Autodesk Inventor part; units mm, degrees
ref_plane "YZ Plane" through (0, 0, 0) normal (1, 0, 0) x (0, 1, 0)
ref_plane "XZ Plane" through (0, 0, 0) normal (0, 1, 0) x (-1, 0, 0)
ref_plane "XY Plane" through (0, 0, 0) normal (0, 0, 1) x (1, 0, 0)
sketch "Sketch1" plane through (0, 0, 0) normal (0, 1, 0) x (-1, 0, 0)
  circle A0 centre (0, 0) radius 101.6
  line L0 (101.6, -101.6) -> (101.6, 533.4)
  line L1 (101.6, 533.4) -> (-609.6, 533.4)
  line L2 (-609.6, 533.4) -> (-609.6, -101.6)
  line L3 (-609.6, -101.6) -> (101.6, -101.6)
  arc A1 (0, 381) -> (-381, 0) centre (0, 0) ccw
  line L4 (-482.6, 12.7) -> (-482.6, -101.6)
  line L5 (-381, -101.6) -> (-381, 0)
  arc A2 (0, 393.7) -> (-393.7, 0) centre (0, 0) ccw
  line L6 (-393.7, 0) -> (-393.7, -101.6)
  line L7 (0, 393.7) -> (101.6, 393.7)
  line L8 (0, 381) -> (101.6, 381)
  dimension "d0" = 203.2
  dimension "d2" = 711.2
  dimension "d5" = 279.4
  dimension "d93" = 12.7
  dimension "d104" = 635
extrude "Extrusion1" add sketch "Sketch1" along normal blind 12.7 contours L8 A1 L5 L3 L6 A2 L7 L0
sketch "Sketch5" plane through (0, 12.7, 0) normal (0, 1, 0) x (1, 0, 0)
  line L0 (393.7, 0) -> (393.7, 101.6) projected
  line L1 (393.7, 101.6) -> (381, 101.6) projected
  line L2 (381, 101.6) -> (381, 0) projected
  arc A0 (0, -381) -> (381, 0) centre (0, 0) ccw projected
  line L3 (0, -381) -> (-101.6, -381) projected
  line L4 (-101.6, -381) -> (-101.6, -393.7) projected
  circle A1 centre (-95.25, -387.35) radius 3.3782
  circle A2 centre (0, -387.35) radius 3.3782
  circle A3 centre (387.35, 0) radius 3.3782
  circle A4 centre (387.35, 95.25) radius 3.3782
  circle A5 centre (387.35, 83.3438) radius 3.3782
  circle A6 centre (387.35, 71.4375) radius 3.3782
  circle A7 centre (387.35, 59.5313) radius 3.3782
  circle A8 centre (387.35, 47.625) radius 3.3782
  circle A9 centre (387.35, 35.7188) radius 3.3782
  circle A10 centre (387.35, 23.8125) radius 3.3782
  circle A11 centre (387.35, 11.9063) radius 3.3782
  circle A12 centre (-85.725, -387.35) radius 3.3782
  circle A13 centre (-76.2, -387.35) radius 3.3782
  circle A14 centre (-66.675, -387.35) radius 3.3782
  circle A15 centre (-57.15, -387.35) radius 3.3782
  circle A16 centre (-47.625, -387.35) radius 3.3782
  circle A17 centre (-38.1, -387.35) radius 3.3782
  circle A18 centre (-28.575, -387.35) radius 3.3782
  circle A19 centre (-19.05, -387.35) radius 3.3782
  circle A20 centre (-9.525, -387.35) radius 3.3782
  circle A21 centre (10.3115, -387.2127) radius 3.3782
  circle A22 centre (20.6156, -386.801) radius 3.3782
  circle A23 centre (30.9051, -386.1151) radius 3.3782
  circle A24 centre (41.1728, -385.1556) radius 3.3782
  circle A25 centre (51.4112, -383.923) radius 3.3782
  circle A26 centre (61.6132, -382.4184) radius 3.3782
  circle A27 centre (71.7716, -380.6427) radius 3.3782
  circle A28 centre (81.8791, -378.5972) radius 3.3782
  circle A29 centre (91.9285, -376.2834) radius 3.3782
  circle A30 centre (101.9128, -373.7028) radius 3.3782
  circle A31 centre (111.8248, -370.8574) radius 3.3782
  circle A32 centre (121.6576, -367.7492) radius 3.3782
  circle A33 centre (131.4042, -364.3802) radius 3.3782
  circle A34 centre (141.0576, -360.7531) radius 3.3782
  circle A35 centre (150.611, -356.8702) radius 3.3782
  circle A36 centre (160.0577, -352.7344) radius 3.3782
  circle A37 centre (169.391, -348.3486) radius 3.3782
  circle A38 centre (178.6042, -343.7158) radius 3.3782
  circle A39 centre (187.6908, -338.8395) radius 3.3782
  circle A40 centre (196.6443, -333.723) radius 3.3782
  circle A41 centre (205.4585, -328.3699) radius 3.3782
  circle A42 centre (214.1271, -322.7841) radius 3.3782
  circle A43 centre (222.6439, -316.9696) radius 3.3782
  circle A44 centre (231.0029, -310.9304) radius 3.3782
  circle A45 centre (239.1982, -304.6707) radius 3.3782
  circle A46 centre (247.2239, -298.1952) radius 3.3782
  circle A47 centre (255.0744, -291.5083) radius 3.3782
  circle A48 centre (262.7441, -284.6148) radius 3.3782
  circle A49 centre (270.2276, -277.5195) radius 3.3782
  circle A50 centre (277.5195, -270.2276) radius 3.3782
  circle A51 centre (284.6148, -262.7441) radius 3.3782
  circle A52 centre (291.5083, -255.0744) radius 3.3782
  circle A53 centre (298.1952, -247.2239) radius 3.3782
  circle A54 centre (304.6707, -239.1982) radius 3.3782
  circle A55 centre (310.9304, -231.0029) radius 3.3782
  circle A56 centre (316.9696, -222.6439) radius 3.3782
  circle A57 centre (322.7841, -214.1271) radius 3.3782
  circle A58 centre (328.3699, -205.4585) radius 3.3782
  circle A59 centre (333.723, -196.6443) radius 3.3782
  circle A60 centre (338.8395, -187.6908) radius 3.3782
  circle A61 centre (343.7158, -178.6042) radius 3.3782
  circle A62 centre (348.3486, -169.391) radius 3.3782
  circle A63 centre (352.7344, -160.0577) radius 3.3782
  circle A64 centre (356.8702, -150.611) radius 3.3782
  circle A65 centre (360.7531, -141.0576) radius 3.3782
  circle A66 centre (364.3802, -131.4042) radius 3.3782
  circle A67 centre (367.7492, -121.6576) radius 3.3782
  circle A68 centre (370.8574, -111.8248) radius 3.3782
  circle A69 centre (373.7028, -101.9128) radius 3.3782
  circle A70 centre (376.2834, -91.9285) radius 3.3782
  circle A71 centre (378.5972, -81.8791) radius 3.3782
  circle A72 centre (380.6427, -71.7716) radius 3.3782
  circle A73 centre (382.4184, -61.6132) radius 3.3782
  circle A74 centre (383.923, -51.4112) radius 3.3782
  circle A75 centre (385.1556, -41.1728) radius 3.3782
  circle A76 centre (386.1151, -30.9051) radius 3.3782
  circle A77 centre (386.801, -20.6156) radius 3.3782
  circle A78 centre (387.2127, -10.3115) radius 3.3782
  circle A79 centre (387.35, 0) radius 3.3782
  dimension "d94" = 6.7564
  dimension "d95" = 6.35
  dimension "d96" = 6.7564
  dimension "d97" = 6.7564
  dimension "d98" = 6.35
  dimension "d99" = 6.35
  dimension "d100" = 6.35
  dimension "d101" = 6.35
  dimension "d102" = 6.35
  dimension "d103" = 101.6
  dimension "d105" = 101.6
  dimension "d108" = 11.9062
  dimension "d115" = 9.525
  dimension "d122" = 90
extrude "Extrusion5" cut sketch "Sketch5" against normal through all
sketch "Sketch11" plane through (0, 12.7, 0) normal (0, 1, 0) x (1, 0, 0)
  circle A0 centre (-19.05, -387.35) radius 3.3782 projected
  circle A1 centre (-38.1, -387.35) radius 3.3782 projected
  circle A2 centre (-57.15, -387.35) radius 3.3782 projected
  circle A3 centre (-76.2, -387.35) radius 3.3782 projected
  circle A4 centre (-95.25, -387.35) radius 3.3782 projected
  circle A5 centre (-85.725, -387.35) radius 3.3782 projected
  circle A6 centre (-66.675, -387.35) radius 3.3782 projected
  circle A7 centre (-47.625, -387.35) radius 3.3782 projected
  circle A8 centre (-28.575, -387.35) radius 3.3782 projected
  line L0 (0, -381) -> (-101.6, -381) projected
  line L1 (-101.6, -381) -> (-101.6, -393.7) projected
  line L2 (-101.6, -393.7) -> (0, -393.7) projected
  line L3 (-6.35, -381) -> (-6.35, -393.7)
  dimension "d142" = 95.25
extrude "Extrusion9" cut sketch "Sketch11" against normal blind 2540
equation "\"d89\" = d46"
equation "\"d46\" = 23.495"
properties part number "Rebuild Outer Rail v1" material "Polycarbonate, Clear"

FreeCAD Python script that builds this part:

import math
import FreeCAD as App
import Part
import Sketcher

V = App.Vector
Q = App.Units.Quantity

doc = App.newDocument("Part")
body = doc.addObject("PartDesign::Body", "Body")

# Sketch on XZ plane
sketch1 = doc.addObject("Sketcher::SketchObject", "Sketch")
body.addObject(sketch1)
sketch1.AttachmentSupport = (doc.XZ_Plane, [""])
sketch1.MapMode = "FlatFace"
sketch1.addGeometry(Part.LineSegment(V(0, 381, 0), V(-102, 381, 0)), False)
sketch1.addGeometry(Part.LineSegment(V(-102, 381, 0), V(-102, 394, 0)), False)
sketch1.addGeometry(Part.LineSegment(V(-102, 394, 0), V(0, 394, 0)), False)
sketch1.addGeometry(Part.ArcOfCircle(Part.Circle(V(0, 0, 0), V(0, 0, 1), 394), math.radians(0), math.radians(90)), False)
sketch1.addGeometry(Part.LineSegment(V(394, 0, 0), V(394, -102, 0)), False)
sketch1.addGeometry(Part.LineSegment(V(394, -102, 0), V(381, -102, 0)), False)
sketch1.addGeometry(Part.LineSegment(V(381, -102, 0), V(381, 0, 0)), False)
sketch1.addGeometry(Part.ArcOfCircle(Part.Circle(V(0, 0, 0), V(0, 0, 1), 381), math.radians(0), math.radians(90)), False)
sketch1.addConstraint(Sketcher.Constraint("Coincident", 0, 2, 1, 1))
sketch1.addConstraint(Sketcher.Constraint("Coincident", 1, 2, 2, 1))
sketch1.addConstraint(Sketcher.Constraint("Tangent", 2, 2, 3, 2))
sketch1.addConstraint(Sketcher.Constraint("Tangent", 3, 1, 4, 1))
sketch1.addConstraint(Sketcher.Constraint("Coincident", 4, 2, 5, 1))
sketch1.addConstraint(Sketcher.Constraint("Coincident", 5, 2, 6, 1))
sketch1.addConstraint(Sketcher.Constraint("Tangent", 6, 2, 7, 1))
sketch1.addConstraint(Sketcher.Constraint("Tangent", 7, 2, 0, 1))
sketch1.addConstraint(Sketcher.Constraint("Horizontal", 0))
sketch1.addConstraint(Sketcher.Constraint("Vertical", 1))
sketch1.addConstraint(Sketcher.Constraint("Horizontal", 2))
sketch1.addConstraint(Sketcher.Constraint("Vertical", 4))
sketch1.addConstraint(Sketcher.Constraint("Horizontal", 5))
sketch1.addConstraint(Sketcher.Constraint("Vertical", 6))
sketch1.addConstraint(Sketcher.Constraint("Coincident", 3, 3, -1, 1))
sketch1.addConstraint(Sketcher.Constraint("Coincident", 7, 3, -1, 1))
sketch1.addConstraint(Sketcher.Constraint("Equal", 2, 4))
sketch1.addConstraint(Sketcher.Constraint("DistanceX", 5, 2, 5, 1, Q("0.5 in")))
sketch1.addConstraint(Sketcher.Constraint("Radius", 7, Q("15 in")))
sketch1.addConstraint(Sketcher.Constraint("DistanceX", 0, 2, 0, 1, Q("4 in")))
pad1 = doc.addObject("PartDesign::Pad", "Pad")
body.addObject(pad1)
pad1.Profile = sketch1
pad1.Length = Q("0.5 in")
pad1.Reversed = True

# Sketch on XZ plane
sketch2 = doc.addObject("Sketcher::SketchObject", "Sketch001")
body.addObject(sketch2)
sketch2.AttachmentSupport = (doc.XZ_Plane, [""])
sketch2.MapMode = "FlatFace"
sketch2.AttachmentOffset = App.Placement(V(0, 0, -0.5 * 25.4), App.Rotation())
sketch2.addGeometry(Part.Circle(V(-95.2, 387.4, 0), V(0, 0, 1), 3.4), False)
sketch2.addGeometry(Part.Circle(V(0, 387.4, 0), V(0, 0, 1), 3.4), False)
sketch2.addGeometry(Part.Circle(V(387.4, 0, 0), V(0, 0, 1), 3.4), False)
sketch2.addGeometry(Part.Circle(V(387.4, -95.2, 0), V(0, 0, 1), 3.4), False)
sketch2.addGeometry(Part.Circle(V(387.4, -83.3, 0), V(0, 0, 1), 3.4), False)
sketch2.addGeometry(Part.Circle(V(387.4, -71.4, 0), V(0, 0, 1), 3.4), False)
sketch2.addGeometry(Part.Circle(V(387.4, -59.5, 0), V(0, 0, 1), 3.4), False)
sketch2.addGeometry(Part.Circle(V(387.4, -47.6, 0), V(0, 0, 1), 3.4), False)
sketch2.addGeometry(Part.Circle(V(387.4, -35.7, 0), V(0, 0, 1), 3.4), False)
sketch2.addGeometry(Part.Circle(V(387.4, -23.8, 0), V(0, 0, 1), 3.4), False)
sketch2.addGeometry(Part.Circle(V(387.4, -11.9, 0), V(0, 0, 1), 3.4), False)
sketch2.addGeometry(Part.Circle(V(-85.7, 387.4, 0), V(0, 0, 1), 3.4), False)
sketch2.addGeometry(Part.Circle(V(-76.2, 387.4, 0), V(0, 0, 1), 3.4), False)
sketch2.addGeometry(Part.Circle(V(-66.7, 387.4, 0), V(0, 0, 1), 3.4), False)
sketch2.addGeometry(Part.Circle(V(-57.1, 387.4, 0), V(0, 0, 1), 3.4), False)
sketch2.addGeometry(Part.Circle(V(-47.6, 387.4, 0), V(0, 0, 1), 3.4), False)
sketch2.addGeometry(Part.Circle(V(-38.1, 387.4, 0), V(0, 0, 1), 3.4), False)
sketch2.addGeometry(Part.Circle(V(-28.6, 387.4, 0), V(0, 0, 1), 3.4), False)
sketch2.addGeometry(Part.Circle(V(-19.1, 387.4, 0), V(0, 0, 1), 3.4), False)
sketch2.addGeometry(Part.Circle(V(-9.5, 387.4, 0), V(0, 0, 1), 3.4), False)
sketch2.addGeometry(Part.Circle(V(10.3, 387.2, 0), V(0, 0, 1), 3.4), False)
sketch2.addGeometry(Part.Circle(V(20.6, 386.8, 0), V(0, 0, 1), 3.4), False)
sketch2.addGeometry(Part.Circle(V(30.9, 386.1, 0), V(0, 0, 1), 3.4), False)
sketch2.addGeometry(Part.Circle(V(41.2, 385.2, 0), V(0, 0, 1), 3.4), False)
sketch2.addGeometry(Part.Circle(V(51.4, 383.9, 0), V(0, 0, 1), 3.4), False)
sketch2.addGeometry(Part.Circle(V(61.6, 382.4, 0), V(0, 0, 1), 3.4), False)
sketch2.addGeometry(Part.Circle(V(71.8, 380.6, 0), V(0, 0, 1), 3.4), False)
sketch2.addGeometry(Part.Circle(V(81.9, 378.6, 0), V(0, 0, 1), 3.4), False)
sketch2.addGeometry(Part.Circle(V(91.9, 376.3, 0), V(0, 0, 1), 3.4), False)
sketch2.addGeometry(Part.Circle(V(101.9, 373.7, 0), V(0, 0, 1), 3.4), False)
sketch2.addGeometry(Part.Circle(V(111.8, 370.9, 0), V(0, 0, 1), 3.4), False)
sketch2.addGeometry(Part.Circle(V(121.7, 367.7, 0), V(0, 0, 1), 3.4), False)
sketch2.addGeometry(Part.Circle(V(131.4, 364.4, 0), V(0, 0, 1), 3.4), False)
sketch2.addGeometry(Part.Circle(V(141.1, 360.8, 0), V(0, 0, 1), 3.4), False)
sketch2.addGeometry(Part.Circle(V(150.6, 356.9, 0), V(0, 0, 1), 3.4), False)
sketch2.addGeometry(Part.Circle(V(160.1, 352.7, 0), V(0, 0, 1), 3.4), False)
sketch2.addGeometry(Part.Circle(V(169.4, 348.3, 0), V(0, 0, 1), 3.4), False)
sketch2.addGeometry(Part.Circle(V(178.6, 343.7, 0), V(0, 0, 1), 3.4), False)
sketch2.addGeometry(Part.Circle(V(187.7, 338.8, 0), V(0, 0, 1), 3.4), False)
sketch2.addGeometry(Part.Circle(V(196.6, 333.7, 0), V(0, 0, 1), 3.4), False)
sketch2.addGeometry(Part.Circle(V(205.5, 328.4, 0), V(0, 0, 1), 3.4), False)
sketch2.addGeometry(Part.Circle(V(214.1, 322.8, 0), V(0, 0, 1), 3.4), False)
sketch2.addGeometry(Part.Circle(V(222.6, 317, 0), V(0, 0, 1), 3.4), False)
sketch2.addGeometry(Part.Circle(V(231, 310.9, 0), V(0, 0, 1), 3.4), False)
sketch2.addGeometry(Part.Circle(V(239.2, 304.7, 0), V(0, 0, 1), 3.4), False)
sketch2.addGeometry(Part.Circle(V(247.2, 298.2, 0), V(0, 0, 1), 3.4), False)
sketch2.addGeometry(Part.Circle(V(255.1, 291.5, 0), V(0, 0, 1), 3.4), False)
sketch2.addGeometry(Part.Circle(V(262.7, 284.6, 0), V(0, 0, 1), 3.4), False)
sketch2.addGeometry(Part.Circle(V(270.2, 277.5, 0), V(0, 0, 1), 3.4), False)
sketch2.addGeometry(Part.Circle(V(277.5, 270.2, 0), V(0, 0, 1), 3.4), False)
sketch2.addGeometry(Part.Circle(V(284.6, 262.7, 0), V(0, 0, 1), 3.4), False)
sketch2.addGeometry(Part.Circle(V(291.5, 255.1, 0), V(0, 0, 1), 3.4), False)
sketch2.addGeometry(Part.Circle(V(298.2, 247.2, 0), V(0, 0, 1), 3.4), False)
sketch2.addGeometry(Part.Circle(V(304.7, 239.2, 0), V(0, 0, 1), 3.4), False)
sketch2.addGeometry(Part.Circle(V(310.9, 231, 0), V(0, 0, 1), 3.4), False)
sketch2.addGeometry(Part.Circle(V(317, 222.6, 0), V(0, 0, 1), 3.4), False)
sketch2.addGeometry(Part.Circle(V(322.8, 214.1, 0), V(0, 0, 1), 3.4), False)
sketch2.addGeometry(Part.Circle(V(328.4, 205.5, 0), V(0, 0, 1), 3.4), False)
sketch2.addGeometry(Part.Circle(V(333.7, 196.6, 0), V(0, 0, 1), 3.4), False)
sketch2.addGeometry(Part.Circle(V(338.8, 187.7, 0), V(0, 0, 1), 3.4), False)
sketch2.addGeometry(Part.Circle(V(343.7, 178.6, 0), V(0, 0, 1), 3.4), False)
sketch2.addGeometry(Part.Circle(V(348.3, 169.4, 0), V(0, 0, 1), 3.4), False)
sketch2.addGeometry(Part.Circle(V(352.7, 160.1, 0), V(0, 0, 1), 3.4), False)
sketch2.addGeometry(Part.Circle(V(356.9, 150.6, 0), V(0, 0, 1), 3.4), False)
sketch2.addGeometry(Part.Circle(V(360.8, 141.1, 0), V(0, 0, 1), 3.4), False)
sketch2.addGeometry(Part.Circle(V(364.4, 131.4, 0), V(0, 0, 1), 3.4), False)
sketch2.addGeometry(Part.Circle(V(367.7, 121.7, 0), V(0, 0, 1), 3.4), False)
sketch2.addGeometry(Part.Circle(V(370.9, 111.8, 0), V(0, 0, 1), 3.4), False)
sketch2.addGeometry(Part.Circle(V(373.7, 101.9, 0), V(0, 0, 1), 3.4), False)
sketch2.addGeometry(Part.Circle(V(376.3, 91.9, 0), V(0, 0, 1), 3.4), False)
sketch2.addGeometry(Part.Circle(V(378.6, 81.9, 0), V(0, 0, 1), 3.4), False)
sketch2.addGeometry(Part.Circle(V(380.6, 71.8, 0), V(0, 0, 1), 3.4), False)
sketch2.addGeometry(Part.Circle(V(382.4, 61.6, 0), V(0, 0, 1), 3.4), False)
sketch2.addGeometry(Part.Circle(V(383.9, 51.4, 0), V(0, 0, 1), 3.4), False)
sketch2.addGeometry(Part.Circle(V(385.2, 41.2, 0), V(0, 0, 1), 3.4), False)
sketch2.addGeometry(Part.Circle(V(386.1, 30.9, 0), V(0, 0, 1), 3.4), False)
sketch2.addGeometry(Part.Circle(V(386.8, 20.6, 0), V(0, 0, 1), 3.4), False)
sketch2.addGeometry(Part.Circle(V(387.2, 10.3, 0), V(0, 0, 1), 3.4), False)
sketch2.addConstraint(Sketcher.Constraint("Equal", 0, 1))
sketch2.addConstraint(Sketcher.Constraint("Equal", 1, 2))
sketch2.addConstraint(Sketcher.Constraint("Equal", 2, 3))
sketch2.addConstraint(Sketcher.Constraint("Equal", 3, 4))
sketch2.addConstraint(Sketcher.Constraint("Equal", 4, 5))
sketch2.addConstraint(Sketcher.Constraint("Equal", 5, 6))
sketch2.addConstraint(Sketcher.Constraint("Equal", 6, 7))
sketch2.addConstraint(Sketcher.Constraint("Equal", 7, 8))
sketch2.addConstraint(Sketcher.Constraint("Equal", 8, 9))
sketch2.addConstraint(Sketcher.Constraint("Equal", 9, 10))
sketch2.addConstraint(Sketcher.Constraint("Equal", 10, 11))
sketch2.addConstraint(Sketcher.Constraint("Equal", 11, 12))
sketch2.addConstraint(Sketcher.Constraint("Equal", 12, 13))
sketch2.addConstraint(Sketcher.Constraint("Equal", 13, 14))
sketch2.addConstraint(Sketcher.Constraint("Equal", 14, 15))
sketch2.addConstraint(Sketcher.Constraint("Equal", 15, 16))
sketch2.addConstraint(Sketcher.Constraint("Equal", 16, 17))
sketch2.addConstraint(Sketcher.Constraint("Equal", 17, 18))
sketch2.addConstraint(Sketcher.Constraint("Equal", 18, 19))
sketch2.addConstraint(Sketcher.Constraint("Equal", 19, 20))
sketch2.addConstraint(Sketcher.Constraint("Equal", 20, 21))
sketch2.addConstraint(Sketcher.Constraint("Equal", 21, 22))
sketch2.addConstraint(Sketcher.Constraint("Equal", 22, 23))
sketch2.addConstraint(Sketcher.Constraint("Equal", 23, 24))
sketch2.addConstraint(Sketcher.Constraint("Equal", 24, 25))
sketch2.addConstraint(Sketcher.Constraint("Equal", 25, 26))
sketch2.addConstraint(Sketcher.Constraint("Equal", 26, 27))
sketch2.addConstraint(Sketcher.Constraint("Equal", 27, 28))
sketch2.addConstraint(Sketcher.Constraint("Equal", 28, 29))
sketch2.addConstraint(Sketcher.Constraint("Equal", 29, 30))
sketch2.addConstraint(Sketcher.Constraint("Equal", 30, 31))
sketch2.addConstraint(Sketcher.Constraint("Equal", 31, 32))
sketch2.addConstraint(Sketcher.Constraint("Equal", 32, 33))
sketch2.addConstraint(Sketcher.Constraint("Equal", 33, 34))
sketch2.addConstraint(Sketcher.Constraint("Equal", 34, 35))
sketch2.addConstraint(Sketcher.Constraint("Equal", 35, 36))
sketch2.addConstraint(Sketcher.Constraint("Equal", 36, 37))
sketch2.addConstraint(Sketcher.Constraint("Equal", 37, 38))
sketch2.addConstraint(Sketcher.Constraint("Equal", 38, 39))
sketch2.addConstraint(Sketcher.Constraint("Equal", 39, 40))
sketch2.addConstraint(Sketcher.Constraint("Equal", 40, 41))
sketch2.addConstraint(Sketcher.Constraint("Equal", 41, 42))
sketch2.addConstraint(Sketcher.Constraint("Equal", 42, 43))
sketch2.addConstraint(Sketcher.Constraint("Equal", 43, 44))
sketch2.addConstraint(Sketcher.Constraint("Equal", 44, 45))
sketch2.addConstraint(Sketcher.Constraint("Equal", 45, 46))
sketch2.addConstraint(Sketcher.Constraint("Equal", 46, 47))
sketch2.addConstraint(Sketcher.Constraint("Equal", 47, 48))
sketch2.addConstraint(Sketcher.Constraint("Equal", 48, 49))
sketch2.addConstraint(Sketcher.Constraint("Equal", 49, 50))
sketch2.addConstraint(Sketcher.Constraint("Equal", 50, 51))
sketch2.addConstraint(Sketcher.Constraint("Equal", 51, 52))
sketch2.addConstraint(Sketcher.Constraint("Equal", 52, 53))
sketch2.addConstraint(Sketcher.Constraint("Equal", 53, 54))
sketch2.addConstraint(Sketcher.Constraint("Equal", 54, 55))
sketch2.addConstraint(Sketcher.Constraint("Equal", 55, 56))
sketch2.addConstraint(Sketcher.Constraint("Equal", 56, 57))
sketch2.addConstraint(Sketcher.Constraint("Equal", 57, 58))
sketch2.addConstraint(Sketcher.Constraint("Equal", 58, 59))
sketch2.addConstraint(Sketcher.Constraint("Equal", 59, 60))
sketch2.addConstraint(Sketcher.Constraint("Equal", 60, 61))
sketch2.addConstraint(Sketcher.Constraint("Equal", 61, 62))
sketch2.addConstraint(Sketcher.Constraint("Equal", 62, 63))
sketch2.addConstraint(Sketcher.Constraint("Equal", 63, 64))
sketch2.addConstraint(Sketcher.Constraint("Equal", 64, 65))
sketch2.addConstraint(Sketcher.Constraint("Equal", 65, 66))
sketch2.addConstraint(Sketcher.Constraint("Equal", 66, 67))
sketch2.addConstraint(Sketcher.Constraint("Equal", 67, 68))
sketch2.addConstraint(Sketcher.Constraint("Equal", 68, 69))
sketch2.addConstraint(Sketcher.Constraint("Equal", 69, 70))
sketch2.addConstraint(Sketcher.Constraint("Equal", 70, 71))
sketch2.addConstraint(Sketcher.Constraint("Equal", 71, 72))
sketch2.addConstraint(Sketcher.Constraint("Equal", 72, 73))
sketch2.addConstraint(Sketcher.Constraint("Equal", 73, 74))
sketch2.addConstraint(Sketcher.Constraint("Equal", 74, 75))
sketch2.addConstraint(Sketcher.Constraint("Equal", 75, 76))
sketch2.addConstraint(Sketcher.Constraint("Equal", 76, 77))
sketch2.addConstraint(Sketcher.Constraint("PointOnObject", 1, 3, -2))
sketch2.addConstraint(Sketcher.Constraint("PointOnObject", 2, 3, -1))
sketch2.addConstraint(Sketcher.Constraint("Horizontal", 0, 3, 1, 3))
sketch2.addConstraint(Sketcher.Constraint("Horizontal", 1, 3, 11, 3))
sketch2.addConstraint(Sketcher.Constraint("Horizontal", 11, 3, 12, 3))
sketch2.addConstraint(Sketcher.Constraint("Horizontal", 12, 3, 13, 3))
sketch2.addConstraint(Sketcher.Constraint("Horizontal", 13, 3, 14, 3))
sketch2.addConstraint(Sketcher.Constraint("Horizontal", 14, 3, 15, 3))
sketch2.addConstraint(Sketcher.Constraint("Horizontal", 15, 3, 16, 3))
sketch2.addConstraint(Sketcher.Constraint("Horizontal", 16, 3, 17, 3))
sketch2.addConstraint(Sketcher.Constraint("Horizontal", 17, 3, 18, 3))
sketch2.addConstraint(Sketcher.Constraint("Horizontal", 18, 3, 19, 3))
sketch2.addConstraint(Sketcher.Constraint("Vertical", 2, 3, 3, 3))
sketch2.addConstraint(Sketcher.Constraint("Vertical", 3, 3, 4, 3))
sketch2.addConstraint(Sketcher.Constraint("Vertical", 4, 3, 5, 3))
sketch2.addConstraint(Sketcher.Constraint("Vertical", 5, 3, 6, 3))
sketch2.addConstraint(Sketcher.Constraint("Vertical", 6, 3, 7, 3))
sketch2.addConstraint(Sketcher.Constraint("Vertical", 7, 3, 8, 3))
sketch2.addConstraint(Sketcher.Constraint("Vertical", 8, 3, 9, 3))
sketch2.addConstraint(Sketcher.Constraint("Vertical", 9, 3, 10, 3))
sketch2.addConstraint(Sketcher.Constraint("Diameter", 0, Q("0.266 in")))
sketch2.addConstraint(Sketcher.Constraint("DistanceY", 10, 3, -1, 1, Q("0.468752 in")))
sketch2.addConstraint(Sketcher.Constraint("DistanceX", 12, 3, -1, 1, Q("3 in")))
sketch2.addConstraint(Sketcher.Constraint("DistanceX", 19, 3, -1, 1, Q("0.375 in")))
sketch2.addConstraint(Sketcher.Constraint("DistanceX", 16, 3, -1, 1, Q("1.5 in")))
sketch2.addConstraint(Sketcher.Constraint("DistanceX", 0, 3, -1, 1, Q("3.75 in")))
sketch2.addConstraint(Sketcher.Constraint("DistanceY", -1, 1, 0, 3, Q("15.25 in")))
sketch2.addConstraint(Sketcher.Constraint("DistanceX", -1, 1, 2, 3, Q("15.25 in")))
sketch2.addConstraint(Sketcher.Constraint("DistanceY", 3, 3, -1, 1, Q("3.75 in")))
sketch2.addConstraint(Sketcher.Constraint("DistanceX", 14, 3, -1, 1, Q("2.25 in")))
sketch2.addConstraint(Sketcher.Constraint("DistanceX", 18, 3, -1, 1, Q("0.75 in")))
sketch2.addConstraint(Sketcher.Constraint("DistanceY", -1, 1, 34, 3, Q("14.05 in")))
sketch2.addConstraint(Sketcher.Constraint("DistanceX", -1, 1, 63, 3, Q("14.05 in")))
sketch2.addConstraint(Sketcher.Constraint("DistanceY", 4, 3, -1, 1, Q("3.281252 in")))
sketch2.addConstraint(Sketcher.Constraint("DistanceY", 5, 3, -1, 1, Q("2.8125 in")))
sketch2.addConstraint(Sketcher.Constraint("DistanceY", 6, 3, -1, 1, Q("2.343752 in")))
sketch2.addConstraint(Sketcher.Constraint("DistanceY", 7, 3, -1, 1, Q("1.875 in")))
sketch2.addConstraint(Sketcher.Constraint("DistanceY", 8, 3, -1, 1, Q("1.406252 in")))
sketch2.addConstraint(Sketcher.Constraint("DistanceY", 9, 3, -1, 1, Q("0.9375 in")))
sketch2.addConstraint(Sketcher.Constraint("DistanceX", 11, 3, -1, 1, Q("3.375 in")))
sketch2.addConstraint(Sketcher.Constraint("DistanceX", 13, 3, -1, 1, Q("2.625 in")))
sketch2.addConstraint(Sketcher.Constraint("DistanceX", 15, 3, -1, 1, Q("1.875 in")))
sketch2.addConstraint(Sketcher.Constraint("DistanceX", 17, 3, -1, 1, Q("1.125 in")))
sketch2.addConstraint(Sketcher.Constraint("DistanceY", -1, 1, 20, 3, Q("15.2446 in")))
sketch2.addConstraint(Sketcher.Constraint("DistanceY", -1, 1, 23, 3, Q("15.1636 in")))
sketch2.addConstraint(Sketcher.Constraint("DistanceY", -1, 1, 27, 3, Q("14.9054 in")))
sketch2.addConstraint(Sketcher.Constraint("DistanceY", -1, 1, 28, 3, Q("14.8143 in")))
sketch2.addConstraint(Sketcher.Constraint("DistanceY", -1, 1, 29, 3, Q("14.7127 in")))
sketch2.addConstraint(Sketcher.Constraint("DistanceX", -1, 1, 32, 3, Q("5.1734 in")))
sketch2.addConstraint(Sketcher.Constraint("DistanceY", -1, 1, 36, 3, Q("13.7145 in")))
sketch2.addConstraint(Sketcher.Constraint("DistanceX", -1, 1, 38, 3, Q("7.3894 in")))
sketch2.addConstraint(Sketcher.Constraint("DistanceX", -1, 1, 39, 3, Q("7.7419 in")))
sketch2.addConstraint(Sketcher.Constraint("DistanceY", -1, 1, 39, 3, Q("13.1387 in")))
sketch2.addConstraint(Sketcher.Constraint("DistanceX", -1, 1, 41, 3, Q("8.4302 in")))
sketch2.addConstraint(Sketcher.Constraint("DistanceX", -1, 1, 42, 3, Q("8.7655 in")))
sketch2.addConstraint(Sketcher.Constraint("DistanceX", -1, 1, 43, 3, Q("9.0946 in")))
sketch2.addConstraint(Sketcher.Constraint("DistanceY", -1, 1, 44, 3, Q("11.9949 in")))
sketch2.addConstraint(Sketcher.Constraint("DistanceX", -1, 1, 46, 3, Q("10.0423 in")))
sketch2.addConstraint(Sketcher.Constraint("DistanceY", -1, 1, 46, 3, Q("11.4767 in")))
sketch2.addConstraint(Sketcher.Constraint("DistanceY", -1, 1, 47, 3, Q("11.2053 in")))
sketch2.addConstraint(Sketcher.Constraint("DistanceX", -1, 1, 50, 3, Q("11.2053 in")))
sketch2.addConstraint(Sketcher.Constraint("DistanceX", -1, 1, 51, 3, Q("11.4767 in")))
sketch2.addConstraint(Sketcher.Constraint("DistanceY", -1, 1, 51, 3, Q("10.0423 in")))
sketch2.addConstraint(Sketcher.Constraint("DistanceX", -1, 1, 53, 3, Q("11.9949 in")))
sketch2.addConstraint(Sketcher.Constraint("DistanceY", -1, 1, 54, 3, Q("9.0946 in")))
sketch2.addConstraint(Sketcher.Constraint("DistanceY", -1, 1, 55, 3, Q("8.7655 in")))
sketch2.addConstraint(Sketcher.Constraint("DistanceY", -1, 1, 56, 3, Q("8.4302 in")))
sketch2.addConstraint(Sketcher.Constraint("DistanceX", -1, 1, 58, 3, Q("13.1387 in")))
sketch2.addConstraint(Sketcher.Constraint("DistanceY", -1, 1, 58, 3, Q("7.7419 in")))
sketch2.addConstraint(Sketcher.Constraint("DistanceY", -1, 1, 59, 3, Q("7.3894 in")))
sketch2.addConstraint(Sketcher.Constraint("DistanceX", -1, 1, 61, 3, Q("13.7145 in")))
sketch2.addConstraint(Sketcher.Constraint("DistanceY", -1, 1, 65, 3, Q("5.1734 in")))
sketch2.addConstraint(Sketcher.Constraint("DistanceX", -1, 1, 68, 3, Q("14.7127 in")))
sketch2.addConstraint(Sketcher.Constraint("DistanceX", -1, 1, 69, 3, Q("14.8143 in")))
sketch2.addConstraint(Sketcher.Constraint("DistanceX", -1, 1, 70, 3, Q("14.9054 in")))
sketch2.addConstraint(Sketcher.Constraint("DistanceX", -1, 1, 74, 3, Q("15.1636 in")))
sketch2.addConstraint(Sketcher.Constraint("DistanceX", -1, 1, 77, 3, Q("15.2446 in")))
sketch2.addConstraint(Sketcher.Constraint("DistanceX", -1, 1, 20, 3, Q("10.3115 mm")))
sketch2.addConstraint(Sketcher.Constraint("DistanceX", -1, 1, 21, 3, Q("20.6156 mm")))
sketch2.addConstraint(Sketcher.Constraint("DistanceY", -1, 1, 21, 3, Q("386.801 mm")))
sketch2.addConstraint(Sketcher.Constraint("DistanceX", -1, 1, 22, 3, Q("30.905 mm")))
sketch2.addConstraint(Sketcher.Constraint("DistanceY", -1, 1, 22, 3, Q("386.115 mm")))
sketch2.addConstraint(Sketcher.Constraint("DistanceX", -1, 1, 23, 3, Q("41.1728 mm")))
sketch2.addConstraint(Sketcher.Constraint("DistanceX", -1, 1, 24, 3, Q("51.4112 mm")))
sketch2.addConstraint(Sketcher.Constraint("DistanceY", -1, 1, 24, 3, Q("383.923 mm")))
sketch2.addConstraint(Sketcher.Constraint("DistanceX", -1, 1, 25, 3, Q("61.6132 mm")))
sketch2.addConstraint(Sketcher.Constraint("DistanceY", -1, 1, 25, 3, Q("382.4184 mm")))
sketch2.addConstraint(Sketcher.Constraint("DistanceX", -1, 1, 26, 3, Q("71.7716 mm")))
sketch2.addConstraint(Sketcher.Constraint("DistanceY", -1, 1, 26, 3, Q("380.6427 mm")))
sketch2.addConstraint(Sketcher.Constraint("DistanceX", -1, 1, 27, 3, Q("81.879 mm")))
sketch2.addConstraint(Sketcher.Constraint("DistanceX", -1, 1, 28, 3, Q("91.9285 mm")))
sketch2.addConstraint(Sketcher.Constraint("DistanceX", -1, 1, 29, 3, Q("101.9128 mm")))
sketch2.addConstraint(Sketcher.Constraint("DistanceX", -1, 1, 30, 3, Q("111.8248 mm")))
sketch2.addConstraint(Sketcher.Constraint("DistanceY", -1, 1, 30, 3, Q("370.8574 mm")))
sketch2.addConstraint(Sketcher.Constraint("DistanceX", -1, 1, 31, 3, Q("121.6576 mm")))
sketch2.addConstraint(Sketcher.Constraint("DistanceY", -1, 1, 31, 3, Q("367.7492 mm")))
sketch2.addConstraint(Sketcher.Constraint("DistanceY", -1, 1, 32, 3, Q("364.3802 mm")))
sketch2.addConstraint(Sketcher.Constraint("DistanceX", -1, 1, 33, 3, Q("141.0576 mm")))
sketch2.addConstraint(Sketcher.Constraint("DistanceY", -1, 1, 33, 3, Q("360.753 mm")))
sketch2.addConstraint(Sketcher.Constraint("DistanceX", -1, 1, 34, 3, Q("150.611 mm")))
sketch2.addConstraint(Sketcher.Constraint("DistanceX", -1, 1, 35, 3, Q("160.0577 mm")))
sketch2.addConstraint(Sketcher.Constraint("DistanceY", -1, 1, 35, 3, Q("352.7344 mm")))
sketch2.addConstraint(Sketcher.Constraint("DistanceX", -1, 1, 36, 3, Q("169.391 mm")))
sketch2.addConstraint(Sketcher.Constraint("DistanceX", -1, 1, 37, 3, Q("178.6042 mm")))
sketch2.addConstraint(Sketcher.Constraint("DistanceY", -1, 1, 37, 3, Q("343.7158 mm")))
sketch2.addConstraint(Sketcher.Constraint("DistanceY", -1, 1, 38, 3, Q("338.8395 mm")))
sketch2.addConstraint(Sketcher.Constraint("DistanceX", -1, 1, 40, 3, Q("205.4585 mm")))
sketch2.addConstraint(Sketcher.Constraint("DistanceY", -1, 1, 40, 3, Q("328.37 mm")))
sketch2.addConstraint(Sketcher.Constraint("DistanceY", -1, 1, 41, 3, Q("322.784 mm")))
sketch2.addConstraint(Sketcher.Constraint("DistanceY", -1, 1, 42, 3, Q("316.9696 mm")))
sketch2.addConstraint(Sketcher.Constraint("DistanceY", -1, 1, 43, 3, Q("310.9304 mm")))
sketch2.addConstraint(Sketcher.Constraint("DistanceX", -1, 1, 44, 3, Q("239.1982 mm")))
sketch2.addConstraint(Sketcher.Constraint("DistanceX", -1, 1, 45, 3, Q("247.224 mm")))
sketch2.addConstraint(Sketcher.Constraint("DistanceY", -1, 1, 45, 3, Q("298.1952 mm")))
sketch2.addConstraint(Sketcher.Constraint("DistanceX", -1, 1, 47, 3, Q("262.744 mm")))
sketch2.addConstraint(Sketcher.Constraint("DistanceX", -1, 1, 48, 3, Q("270.2276 mm")))
sketch2.addConstraint(Sketcher.Constraint("DistanceY", -1, 1, 48, 3, Q("277.5195 mm")))
sketch2.addConstraint(Sketcher.Constraint("DistanceX", -1, 1, 49, 3, Q("277.5195 mm")))
sketch2.addConstraint(Sketcher.Constraint("DistanceY", -1, 1, 49, 3, Q("270.2276 mm")))
sketch2.addConstraint(Sketcher.Constraint("DistanceY", -1, 1, 50, 3, Q("262.744 mm")))
sketch2.addConstraint(Sketcher.Constraint("DistanceX", -1, 1, 52, 3, Q("298.1952 mm")))
sketch2.addConstraint(Sketcher.Constraint("DistanceY", -1, 1, 52, 3, Q("247.224 mm")))
sketch2.addConstraint(Sketcher.Constraint("DistanceY", -1, 1, 53, 3, Q("239.1982 mm")))
sketch2.addConstraint(Sketcher.Constraint("DistanceX", -1, 1, 54, 3, Q("310.9304 mm")))
sketch2.addConstraint(Sketcher.Constraint("DistanceX", -1, 1, 55, 3, Q("316.9696 mm")))
sketch2.addConstraint(Sketcher.Constraint("DistanceX", -1, 1, 56, 3, Q("322.784 mm")))
sketch2.addConstraint(Sketcher.Constraint("DistanceX", -1, 1, 57, 3, Q("328.37 mm")))
sketch2.addConstraint(Sketcher.Constraint("DistanceY", -1, 1, 57, 3, Q("205.4585 mm")))
sketch2.addConstraint(Sketcher.Constraint("DistanceX", -1, 1, 59, 3, Q("338.8395 mm")))
sketch2.addConstraint(Sketcher.Constraint("DistanceX", -1, 1, 60, 3, Q("343.7158 mm")))
sketch2.addConstraint(Sketcher.Constraint("DistanceY", -1, 1, 60, 3, Q("178.6042 mm")))
sketch2.addConstraint(Sketcher.Constraint("DistanceY", -1, 1, 61, 3, Q("169.391 mm")))
sketch2.addConstraint(Sketcher.Constraint("DistanceX", -1, 1, 62, 3, Q("352.7344 mm")))
sketch2.addConstraint(Sketcher.Constraint("DistanceY", -1, 1, 62, 3, Q("160.0577 mm")))
sketch2.addConstraint(Sketcher.Constraint("DistanceY", -1, 1, 63, 3, Q("150.611 mm")))
sketch2.addConstraint(Sketcher.Constraint("DistanceX", -1, 1, 64, 3, Q("360.753 mm")))
sketch2.addConstraint(Sketcher.Constraint("DistanceY", -1, 1, 64, 3, Q("141.0576 mm")))
sketch2.addConstraint(Sketcher.Constraint("DistanceX", -1, 1, 65, 3, Q("364.3802 mm")))
sketch2.addConstraint(Sketcher.Constraint("DistanceX", -1, 1, 66, 3, Q("367.7492 mm")))
sketch2.addConstraint(Sketcher.Constraint("DistanceY", -1, 1, 66, 3, Q("121.6576 mm")))
sketch2.addConstraint(Sketcher.Constraint("DistanceX", -1, 1, 67, 3, Q("370.8574 mm")))
sketch2.addConstraint(Sketcher.Constraint("DistanceY", -1, 1, 67, 3, Q("111.8248 mm")))
sketch2.addConstraint(Sketcher.Constraint("DistanceY", -1, 1, 68, 3, Q("101.9128 mm")))
sketch2.addConstraint(Sketcher.Constraint("DistanceY", -1, 1, 69, 3, Q("91.9285 mm")))
sketch2.addConstraint(Sketcher.Constraint("DistanceY", -1, 1, 70, 3, Q("81.879 mm")))
sketch2.addConstraint(Sketcher.Constraint("DistanceX", -1, 1, 71, 3, Q("380.6427 mm")))
sketch2.addConstraint(Sketcher.Constraint("DistanceY", -1, 1, 71, 3, Q("71.7716 mm")))
sketch2.addConstraint(Sketcher.Constraint("DistanceX", -1, 1, 72, 3, Q("382.4184 mm")))
sketch2.addConstraint(Sketcher.Constraint("DistanceY", -1, 1, 72, 3, Q("61.6132 mm")))
sketch2.addConstraint(Sketcher.Constraint("DistanceX", -1, 1, 73, 3, Q("383.923 mm")))
sketch2.addConstraint(Sketcher.Constraint("DistanceY", -1, 1, 73, 3, Q("51.4112 mm")))
sketch2.addConstraint(Sketcher.Constraint("DistanceY", -1, 1, 74, 3, Q("41.1728 mm")))
sketch2.addConstraint(Sketcher.Constraint("DistanceX", -1, 1, 75, 3, Q("386.115 mm")))
sketch2.addConstraint(Sketcher.Constraint("DistanceY", -1, 1, 75, 3, Q("30.905 mm")))
sketch2.addConstraint(Sketcher.Constraint("DistanceX", -1, 1, 76, 3, Q("386.801 mm")))
sketch2.addConstraint(Sketcher.Constraint("DistanceY", -1, 1, 76, 3, Q("20.6156 mm")))
sketch2.addConstraint(Sketcher.Constraint("DistanceY", -1, 1, 77, 3, Q("10.3115 mm")))
pocket1 = doc.addObject("PartDesign::Pocket", "Pocket")
body.addObject(pocket1)
pocket1.Profile = sketch2
pocket1.Type = "ThroughAll"
pocket1.Reversed = True

# Sketch on XZ plane
sketch3 = doc.addObject("Sketcher::SketchObject", "Sketch002")
body.addObject(sketch3)
sketch3.AttachmentSupport = (doc.XZ_Plane, [""])
sketch3.MapMode = "FlatFace"
sketch3.AttachmentOffset = App.Placement(V(0, 0, -0.5 * 25.4), App.Rotation())
sketch3.addGeometry(Part.LineSegment(V(-6.3, 393.7, 0), V(-6.3, 381, 0)), False)
sketch3.addGeometry(Part.LineSegment(V(-6.3, 381, 0), V(-101.6, 381, 0)), False)
sketch3.addGeometry(Part.LineSegment(V(-101.6, 381, 0), V(-101.6, 393.7, 0)), False)
sketch3.addGeometry(Part.LineSegment(V(-101.6, 393.7, 0), V(-6.3, 393.7, 0)), False)
sketch3.addGeometry(Part.Circle(V(-95.2, 387.4, 0), V(0, 0, 1), 3.4), False)
sketch3.addGeometry(Part.Circle(V(-85.7, 387.4, 0), V(0, 0, 1), 3.4), False)
sketch3.addGeometry(Part.Circle(V(-76.2, 387.4, 0), V(0, 0, 1), 3.4), False)
sketch3.addGeometry(Part.Circle(V(-66.7, 387.4, 0), V(0, 0, 1), 3.4), False)
sketch3.addGeometry(Part.Circle(V(-57.1, 387.4, 0), V(0, 0, 1), 3.4), False)
sketch3.addGeometry(Part.Circle(V(-47.6, 387.4, 0), V(0, 0, 1), 3.4), False)
sketch3.addGeometry(Part.Circle(V(-38.1, 387.4, 0), V(0, 0, 1), 3.4), False)
sketch3.addGeometry(Part.Circle(V(-28.6, 387.4, 0), V(0, 0, 1), 3.4), False)
sketch3.addGeometry(Part.Circle(V(-19.1, 387.4, 0), V(0, 0, 1), 3.4), False)
sketch3.addConstraint(Sketcher.Constraint("Coincident", 0, 2, 1, 1))
sketch3.addConstraint(Sketcher.Constraint("Coincident", 1, 2, 2, 1))
sketch3.addConstraint(Sketcher.Constraint("Coincident", 2, 2, 3, 1))
sketch3.addConstraint(Sketcher.Constraint("Coincident", 3, 2, 0, 1))
sketch3.addConstraint(Sketcher.Constraint("Vertical", 0))
sketch3.addConstraint(Sketcher.Constraint("Horizontal", 1))
sketch3.addConstraint(Sketcher.Constraint("Vertical", 2))
sketch3.addConstraint(Sketcher.Constraint("Horizontal", 3))
sketch3.addConstraint(Sketcher.Constraint("Equal", 4, 5))
sketch3.addConstraint(Sketcher.Constraint("Equal", 5, 6))
sketch3.addConstraint(Sketcher.Constraint("Equal", 6, 7))
sketch3.addConstraint(Sketcher.Constraint("Equal", 7, 8))
sketch3.addConstraint(Sketcher.Constraint("Equal", 8, 9))
sketch3.addConstraint(Sketcher.Constraint("Equal", 9, 10))
sketch3.addConstraint(Sketcher.Constraint("Equal", 10, 11))
sketch3.addConstraint(Sketcher.Constraint("Equal", 11, 12))
sketch3.addConstraint(Sketcher.Constraint("Horizontal", 4, 3, 5, 3))
sketch3.addConstraint(Sketcher.Constraint("Horizontal", 5, 3, 6, 3))
sketch3.addConstraint(Sketcher.Constraint("Horizontal", 6, 3, 7, 3))
sketch3.addConstraint(Sketcher.Constraint("Horizontal", 7, 3, 8, 3))
sketch3.addConstraint(Sketcher.Constraint("Horizontal", 8, 3, 9, 3))
sketch3.addConstraint(Sketcher.Constraint("Horizontal", 9, 3, 10, 3))
sketch3.addConstraint(Sketcher.Constraint("Horizontal", 10, 3, 11, 3))
sketch3.addConstraint(Sketcher.Constraint("Horizontal", 11, 3, 12, 3))
sketch3.addConstraint(Sketcher.Constraint("DistanceX", 1, 2, 1, 1, Q("3.75 in")))
sketch3.addConstraint(Sketcher.Constraint("DistanceX", 4, 3, -1, 1, Q("3.75 in")))
sketch3.addConstraint(Sketcher.Constraint("Diameter", 4, Q("0.266 in")))
sketch3.addConstraint(Sketcher.Constraint("DistanceY", 0, 2, 0, 1, Q("0.5 in")))
sketch3.addConstraint(Sketcher.Constraint("DistanceX", 6, 3, -1, 1, Q("3 in")))
sketch3.addConstraint(Sketcher.Constraint("DistanceY", -1, 1, 0, 2, Q("15 in")))
sketch3.addConstraint(Sketcher.Constraint("DistanceX", 1, 2, -1, 1, Q("4 in")))
sketch3.addConstraint(Sketcher.Constraint("DistanceX", 8, 3, 0, 2, Q("2 in")))
sketch3.addConstraint(Sketcher.Constraint("DistanceX", 10, 3, -1, 1, Q("1.5 in")))
sketch3.addConstraint(Sketcher.Constraint("DistanceX", 5, 3, 9, 3, Q("1.5 in")))
sketch3.addConstraint(Sketcher.Constraint("DistanceX", 7, 3, 11, 3, Q("1.5 in")))
sketch3.addConstraint(Sketcher.Constraint("DistanceX", 8, 3, 12, 3, Q("1.5 in")))
sketch3.addConstraint(Sketcher.Constraint("DistanceY", -1, 1, 4, 3, Q("15.25 in")))
sketch3.addConstraint(Sketcher.Constraint("DistanceX", 5, 3, 7, 3, Q("0.75 in")))
sketch3.addConstraint(Sketcher.Constraint("DistanceX", 5, 3, -1, 1, Q("3.375 in")))
pocket2 = doc.addObject("PartDesign::Pocket", "Pocket001")
body.addObject(pocket2)
pocket2.Profile = sketch3
pocket2.Length = Q("100 in")
pocket2.Reversed = True

doc.recompute()
